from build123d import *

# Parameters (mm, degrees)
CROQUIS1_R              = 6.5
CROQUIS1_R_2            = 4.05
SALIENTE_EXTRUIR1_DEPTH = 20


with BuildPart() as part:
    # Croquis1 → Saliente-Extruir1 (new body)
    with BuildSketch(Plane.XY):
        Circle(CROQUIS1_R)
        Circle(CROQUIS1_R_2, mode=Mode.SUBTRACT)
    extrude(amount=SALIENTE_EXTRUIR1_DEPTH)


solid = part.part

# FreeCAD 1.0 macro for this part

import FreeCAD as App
import Part
import Sketcher

V = App.Vector

doc = App.newDocument("Part")
body = doc.addObject("PartDesign::Body", "Body")

sketch1 = body.newObject("Sketcher::SketchObject", "Sketch")
sketch1.AttachmentSupport = (doc.getObject("XY_Plane"), [""])
sketch1.MapMode = "FlatFace"
sketch1.addGeometry([
    Part.Circle(V(0, 0, 0), V(0, 0, 1), 6.5),
    Part.Circle(V(0, 0, 0), V(0, 0, 1), 4.05),
], False)
sketch1.addConstraint([
    Sketcher.Constraint("Coincident", 0, 3, -1, 1),
    Sketcher.Constraint("Coincident", 1, 3, -1, 1),
    Sketcher.Constraint("Diameter", 0, 13.0),
    Sketcher.Constraint("Diameter", 1, 8.1),
])
pad1 = body.newObject("PartDesign::Pad", "Pad")
pad1.Profile = sketch1
pad1.Length = 20

doc.recompute()
